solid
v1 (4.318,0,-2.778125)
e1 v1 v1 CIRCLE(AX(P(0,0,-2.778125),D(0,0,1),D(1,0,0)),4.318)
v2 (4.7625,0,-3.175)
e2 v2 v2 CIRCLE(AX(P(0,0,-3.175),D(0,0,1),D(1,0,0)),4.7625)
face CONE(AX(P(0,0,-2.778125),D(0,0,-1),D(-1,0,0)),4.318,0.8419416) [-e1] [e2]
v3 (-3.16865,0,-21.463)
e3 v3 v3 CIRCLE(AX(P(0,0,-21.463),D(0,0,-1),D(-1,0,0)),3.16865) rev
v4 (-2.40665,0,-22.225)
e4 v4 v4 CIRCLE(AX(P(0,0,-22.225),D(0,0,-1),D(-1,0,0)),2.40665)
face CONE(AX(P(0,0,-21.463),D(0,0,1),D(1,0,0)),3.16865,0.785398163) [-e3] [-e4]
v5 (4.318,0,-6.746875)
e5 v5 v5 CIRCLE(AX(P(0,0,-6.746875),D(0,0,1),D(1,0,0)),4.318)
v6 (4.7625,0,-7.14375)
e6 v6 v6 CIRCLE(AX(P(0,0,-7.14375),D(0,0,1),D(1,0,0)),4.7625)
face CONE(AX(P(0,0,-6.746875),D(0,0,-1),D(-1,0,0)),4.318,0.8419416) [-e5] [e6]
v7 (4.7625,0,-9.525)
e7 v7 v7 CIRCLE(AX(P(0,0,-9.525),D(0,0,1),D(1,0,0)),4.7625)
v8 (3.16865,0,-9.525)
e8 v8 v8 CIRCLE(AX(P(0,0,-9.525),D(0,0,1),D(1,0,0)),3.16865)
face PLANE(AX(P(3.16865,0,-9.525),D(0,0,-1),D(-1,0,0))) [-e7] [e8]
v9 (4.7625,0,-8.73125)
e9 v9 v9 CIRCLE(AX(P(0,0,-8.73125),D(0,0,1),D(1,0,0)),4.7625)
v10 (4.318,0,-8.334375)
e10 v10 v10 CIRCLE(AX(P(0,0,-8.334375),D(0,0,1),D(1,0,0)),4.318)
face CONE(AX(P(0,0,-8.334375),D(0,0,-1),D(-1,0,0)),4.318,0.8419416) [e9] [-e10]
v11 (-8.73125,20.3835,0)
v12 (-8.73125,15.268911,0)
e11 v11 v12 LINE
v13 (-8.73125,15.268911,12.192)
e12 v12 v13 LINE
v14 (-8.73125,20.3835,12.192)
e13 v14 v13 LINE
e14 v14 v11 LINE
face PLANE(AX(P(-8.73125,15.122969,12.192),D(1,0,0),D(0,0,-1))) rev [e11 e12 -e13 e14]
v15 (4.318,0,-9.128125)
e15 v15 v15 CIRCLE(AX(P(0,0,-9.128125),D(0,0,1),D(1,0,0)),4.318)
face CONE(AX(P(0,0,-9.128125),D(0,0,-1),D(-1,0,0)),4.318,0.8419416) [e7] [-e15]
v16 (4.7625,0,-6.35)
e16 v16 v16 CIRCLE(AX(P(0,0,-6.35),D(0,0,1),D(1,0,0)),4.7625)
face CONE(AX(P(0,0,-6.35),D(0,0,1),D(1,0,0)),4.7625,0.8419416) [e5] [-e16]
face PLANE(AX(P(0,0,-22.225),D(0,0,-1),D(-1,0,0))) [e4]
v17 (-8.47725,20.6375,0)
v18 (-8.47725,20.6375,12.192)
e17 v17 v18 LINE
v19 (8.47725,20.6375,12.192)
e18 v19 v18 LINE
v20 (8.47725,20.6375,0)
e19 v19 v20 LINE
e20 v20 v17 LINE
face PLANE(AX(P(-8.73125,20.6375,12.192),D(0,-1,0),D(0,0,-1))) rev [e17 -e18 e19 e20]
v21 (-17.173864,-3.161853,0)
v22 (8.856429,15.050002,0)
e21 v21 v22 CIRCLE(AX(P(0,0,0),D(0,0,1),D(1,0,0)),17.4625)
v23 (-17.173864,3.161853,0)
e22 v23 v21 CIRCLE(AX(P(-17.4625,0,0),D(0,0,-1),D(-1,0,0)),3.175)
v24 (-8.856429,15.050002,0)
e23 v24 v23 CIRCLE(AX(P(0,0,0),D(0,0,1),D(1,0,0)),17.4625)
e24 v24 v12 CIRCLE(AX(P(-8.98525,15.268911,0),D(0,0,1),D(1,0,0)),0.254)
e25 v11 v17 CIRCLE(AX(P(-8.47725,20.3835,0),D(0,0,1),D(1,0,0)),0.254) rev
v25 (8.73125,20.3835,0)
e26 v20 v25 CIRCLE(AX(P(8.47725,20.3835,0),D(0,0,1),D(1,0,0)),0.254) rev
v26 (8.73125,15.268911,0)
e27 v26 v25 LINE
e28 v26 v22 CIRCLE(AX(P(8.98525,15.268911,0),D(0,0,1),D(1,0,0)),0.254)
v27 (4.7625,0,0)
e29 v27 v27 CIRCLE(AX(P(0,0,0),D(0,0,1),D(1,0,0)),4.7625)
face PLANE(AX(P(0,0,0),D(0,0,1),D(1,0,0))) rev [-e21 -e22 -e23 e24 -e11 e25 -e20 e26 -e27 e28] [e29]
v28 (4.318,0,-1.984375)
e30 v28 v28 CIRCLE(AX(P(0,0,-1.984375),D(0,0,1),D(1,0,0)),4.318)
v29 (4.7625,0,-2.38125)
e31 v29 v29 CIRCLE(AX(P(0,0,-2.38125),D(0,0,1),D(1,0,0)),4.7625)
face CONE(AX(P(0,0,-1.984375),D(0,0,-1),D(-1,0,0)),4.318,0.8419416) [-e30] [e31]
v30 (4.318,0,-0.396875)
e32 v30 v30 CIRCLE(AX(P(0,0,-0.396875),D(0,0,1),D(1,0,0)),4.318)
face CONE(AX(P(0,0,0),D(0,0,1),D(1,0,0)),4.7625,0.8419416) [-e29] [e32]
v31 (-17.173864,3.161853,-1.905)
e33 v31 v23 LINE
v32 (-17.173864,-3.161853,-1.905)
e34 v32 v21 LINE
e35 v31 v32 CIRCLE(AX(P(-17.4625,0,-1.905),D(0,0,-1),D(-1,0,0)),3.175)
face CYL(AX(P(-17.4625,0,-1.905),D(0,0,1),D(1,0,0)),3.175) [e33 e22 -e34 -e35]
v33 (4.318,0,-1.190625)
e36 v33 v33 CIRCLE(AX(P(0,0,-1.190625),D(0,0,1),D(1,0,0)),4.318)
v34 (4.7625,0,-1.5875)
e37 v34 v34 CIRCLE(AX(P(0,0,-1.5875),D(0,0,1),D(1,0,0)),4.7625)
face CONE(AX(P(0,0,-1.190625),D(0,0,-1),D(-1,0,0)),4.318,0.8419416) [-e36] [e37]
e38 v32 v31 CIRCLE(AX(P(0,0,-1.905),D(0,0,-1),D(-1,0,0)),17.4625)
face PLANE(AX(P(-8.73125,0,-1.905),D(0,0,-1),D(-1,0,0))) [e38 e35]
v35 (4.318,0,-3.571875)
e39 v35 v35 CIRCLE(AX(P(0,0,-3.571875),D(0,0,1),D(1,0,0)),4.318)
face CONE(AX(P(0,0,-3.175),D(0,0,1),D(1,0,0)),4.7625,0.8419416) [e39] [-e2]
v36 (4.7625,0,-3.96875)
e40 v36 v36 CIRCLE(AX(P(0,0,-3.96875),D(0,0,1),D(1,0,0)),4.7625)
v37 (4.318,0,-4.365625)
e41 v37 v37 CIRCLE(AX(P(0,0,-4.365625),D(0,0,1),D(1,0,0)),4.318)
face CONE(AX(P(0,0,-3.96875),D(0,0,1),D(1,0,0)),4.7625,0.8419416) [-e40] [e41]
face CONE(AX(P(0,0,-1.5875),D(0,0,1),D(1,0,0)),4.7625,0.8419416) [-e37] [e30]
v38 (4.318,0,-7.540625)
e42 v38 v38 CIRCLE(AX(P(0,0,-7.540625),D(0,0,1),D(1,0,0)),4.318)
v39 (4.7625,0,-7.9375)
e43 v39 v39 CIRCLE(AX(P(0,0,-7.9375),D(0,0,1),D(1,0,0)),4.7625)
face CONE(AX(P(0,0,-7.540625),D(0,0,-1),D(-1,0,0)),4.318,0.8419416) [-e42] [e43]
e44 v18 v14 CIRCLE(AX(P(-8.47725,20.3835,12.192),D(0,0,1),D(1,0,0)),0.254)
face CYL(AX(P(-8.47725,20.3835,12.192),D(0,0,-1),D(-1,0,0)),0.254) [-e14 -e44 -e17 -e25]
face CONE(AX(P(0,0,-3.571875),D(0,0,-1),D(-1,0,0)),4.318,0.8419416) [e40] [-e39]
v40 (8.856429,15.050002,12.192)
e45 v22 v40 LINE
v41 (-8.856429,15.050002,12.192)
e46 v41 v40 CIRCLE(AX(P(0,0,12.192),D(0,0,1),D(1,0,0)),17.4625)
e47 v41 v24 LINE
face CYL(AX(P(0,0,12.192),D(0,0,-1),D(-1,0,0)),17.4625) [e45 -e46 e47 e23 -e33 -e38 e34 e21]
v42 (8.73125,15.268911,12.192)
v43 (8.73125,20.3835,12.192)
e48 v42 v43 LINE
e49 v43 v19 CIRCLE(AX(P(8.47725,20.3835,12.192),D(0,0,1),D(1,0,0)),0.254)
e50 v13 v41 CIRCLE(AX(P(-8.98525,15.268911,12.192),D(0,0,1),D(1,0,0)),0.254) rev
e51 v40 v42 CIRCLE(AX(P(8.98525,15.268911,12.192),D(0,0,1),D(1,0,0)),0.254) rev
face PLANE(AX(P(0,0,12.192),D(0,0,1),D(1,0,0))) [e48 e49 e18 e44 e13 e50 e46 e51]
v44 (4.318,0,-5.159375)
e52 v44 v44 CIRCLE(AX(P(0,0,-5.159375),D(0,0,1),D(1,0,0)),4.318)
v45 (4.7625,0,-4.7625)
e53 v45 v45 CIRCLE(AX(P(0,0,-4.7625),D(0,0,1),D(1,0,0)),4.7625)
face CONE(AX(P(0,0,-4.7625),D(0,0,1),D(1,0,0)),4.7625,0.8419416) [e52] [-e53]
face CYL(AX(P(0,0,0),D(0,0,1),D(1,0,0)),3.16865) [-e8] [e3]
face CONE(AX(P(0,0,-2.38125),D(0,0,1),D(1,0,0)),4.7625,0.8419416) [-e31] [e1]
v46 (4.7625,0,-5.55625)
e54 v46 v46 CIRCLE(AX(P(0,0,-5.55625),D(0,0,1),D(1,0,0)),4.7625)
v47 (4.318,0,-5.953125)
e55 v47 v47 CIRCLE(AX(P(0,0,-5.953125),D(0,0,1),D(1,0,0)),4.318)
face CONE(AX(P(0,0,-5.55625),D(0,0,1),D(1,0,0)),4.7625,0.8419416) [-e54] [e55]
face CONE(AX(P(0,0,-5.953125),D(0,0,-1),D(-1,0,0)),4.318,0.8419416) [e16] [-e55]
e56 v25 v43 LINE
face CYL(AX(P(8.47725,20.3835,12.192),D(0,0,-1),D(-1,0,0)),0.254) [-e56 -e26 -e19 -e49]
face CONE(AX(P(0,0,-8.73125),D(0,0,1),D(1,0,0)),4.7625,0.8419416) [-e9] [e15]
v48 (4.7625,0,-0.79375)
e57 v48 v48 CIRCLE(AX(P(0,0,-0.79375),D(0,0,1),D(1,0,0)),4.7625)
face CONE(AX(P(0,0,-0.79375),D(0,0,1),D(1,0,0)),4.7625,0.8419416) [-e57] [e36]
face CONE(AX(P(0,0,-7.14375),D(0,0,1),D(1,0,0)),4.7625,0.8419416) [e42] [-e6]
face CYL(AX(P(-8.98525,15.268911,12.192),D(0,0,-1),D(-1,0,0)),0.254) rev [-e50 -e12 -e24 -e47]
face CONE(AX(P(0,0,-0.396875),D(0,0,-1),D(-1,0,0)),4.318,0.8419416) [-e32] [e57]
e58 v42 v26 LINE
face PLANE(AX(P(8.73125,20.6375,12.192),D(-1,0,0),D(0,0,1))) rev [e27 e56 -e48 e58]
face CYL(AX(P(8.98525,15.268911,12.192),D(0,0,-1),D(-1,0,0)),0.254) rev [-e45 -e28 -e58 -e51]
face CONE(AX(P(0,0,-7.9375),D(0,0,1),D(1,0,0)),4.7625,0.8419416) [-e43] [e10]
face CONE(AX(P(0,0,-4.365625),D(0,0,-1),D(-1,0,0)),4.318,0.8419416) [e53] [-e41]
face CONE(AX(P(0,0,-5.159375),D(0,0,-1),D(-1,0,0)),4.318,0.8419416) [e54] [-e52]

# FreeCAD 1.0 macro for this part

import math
import FreeCAD as App
import Part
import Sketcher

V = App.Vector
Q = App.Units.Quantity


def edges_at(feature, points):
    """Names of the edges that pass closest to the given points."""
    edges = feature.Shape.Edges
    near = lambda p: min(range(len(edges)), key=lambda i: edges[i].distToShape(Part.Vertex(*p))[0])
    return sorted({f"Edge{near(p) + 1}" for p in points})

doc = App.newDocument("Part")
params = doc.addObject("Spreadsheet::Sheet", "Params")
for row, (alias, value) in enumerate([
    ("sketch1_radius", "0.6875 in"),
    ("sketch1_width", "0.6875 in"),
    ("pad1_length", "0.48 in"),
    ("pad2_length", "0.05 in"),
    ("sketch3_height", "0.5 in"),
    ("sketch3_width", "0.1875 in"),
    ("sketch3_height2", "0.875 in"),
    ("revolution_angle", "360 deg"),
    ("chamfer_size", "0.03 in"),
    ("fillet_radius", "0.01 in"),
    ("sketch4_radius", "0.125 in"),
    ("sketch4_radius2", "0.6875 in"),
    ("pad3_length", "0.075 in"),
], start=1):
    params.set(f"A{row}", alias)
    params.set(f"B{row}", "=" + value)
    params.setAlias(f"B{row}", alias)

body = doc.addObject("PartDesign::Body", "Body")

sketch1 = doc.addObject("Sketcher::SketchObject", "Sketch")
body.addObject(sketch1)
sketch1.AttachmentSupport = (doc.XY_Plane, [""])
sketch1.MapMode = "FlatFace"
sketch1.addGeometry([
    Part.LineSegment(V(-8.73125, 20.6375, 0), V(-8.73125, 15.122969, 0)),
    Part.ArcOfCircle(Part.Circle(V(0, 0, 0), V(0, 0, 1), 17.4625), math.radians(120), math.radians(420)),
    Part.LineSegment(V(8.73125, 15.122969, 0), V(8.73125, 20.6375, 0)),
    Part.LineSegment(V(8.73125, 20.6375, 0), V(-8.73125, 20.6375, 0)),
], False)
sketch1.addConstraint([
    Sketcher.Constraint("Coincident", 0, 2, 1, 1),
    Sketcher.Constraint("Coincident", 1, 2, 2, 1),
    Sketcher.Constraint("Coincident", 2, 2, 3, 1),
    Sketcher.Constraint("Coincident", 3, 2, 0, 1),
    Sketcher.Constraint("Vertical", 0),
    Sketcher.Constraint("Vertical", 2),
    Sketcher.Constraint("Horizontal", 3),
    Sketcher.Constraint("Coincident", 1, 3, -1, 1),
    Sketcher.Constraint("Horizontal", 0, 2, 1, 2),
    Sketcher.Constraint("Radius", 1, Q("0.6875 in")),
    Sketcher.Constraint("DistanceX", 3, 2, 3, 1, Q("0.6875 in")),
    Sketcher.Constraint("DistanceY", -1, 1, 2, 2, Q("0.8125 in")),
])
sketch1.setExpression("Constraints[9]", "Params.sketch1_radius")
sketch1.setExpression("Constraints[10]", "Params.sketch1_width")
pad1 = doc.addObject("PartDesign::Pad", "Pad")
body.addObject(pad1)
pad1.Profile = sketch1
pad1.setExpression("Length", "Params.pad1_length")
body2 = doc.addObject("PartDesign::Body", "Body001")

sketch2 = doc.addObject("Sketcher::SketchObject", "Sketch001")
body2.addObject(sketch2)
sketch2.AttachmentSupport = (doc.getObject("XY_Plane001"), [""])
sketch2.MapMode = "FlatFace"
sketch2.addGeometry([
    Part.LineSegment(V(-3.175, 1.833087, 0), V(0, 3.666174, 0)),
    Part.LineSegment(V(0, 3.666174, 0), V(3.175, 1.833087, 0)),
    Part.LineSegment(V(3.175, 1.833087, 0), V(3.175, -1.833087, 0)),
    Part.LineSegment(V(3.175, -1.833087, 0), V(0, -3.666174, 0)),
    Part.LineSegment(V(0, -3.666174, 0), V(-3.175, -1.833087, 0)),
    Part.LineSegment(V(-3.175, -1.833087, 0), V(-3.175, 1.833087, 0)),
], False)
sketch2.addConstraint([
    Sketcher.Constraint("Coincident", 0, 2, 1, 1),
    Sketcher.Constraint("Coincident", 1, 2, 2, 1),
    Sketcher.Constraint("Coincident", 2, 2, 3, 1),
    Sketcher.Constraint("Coincident", 3, 2, 4, 1),
    Sketcher.Constraint("Coincident", 4, 2, 5, 1),
    Sketcher.Constraint("Coincident", 5, 2, 0, 1),
    Sketcher.Constraint("Vertical", 2),
    Sketcher.Constraint("Vertical", 5),
    Sketcher.Constraint("Symmetric", 0, 2, 3, 2, -1, 1),
    Sketcher.Constraint("Symmetric", 1, 2, 4, 2, -1, 1),
    Sketcher.Constraint("PointOnObject", 0, 2, -2),
    Sketcher.Constraint("Parallel", 0, 3),
    Sketcher.Constraint("Horizontal", 2, 2, 4, 2),
    Sketcher.Constraint("Angle", 0, Q("30 deg")),
    Sketcher.Constraint("DistanceX", 4, 2, 2, 2, Q("0.25 in")),
    Sketcher.Constraint("DistanceY", 2, 2, 2, 1, 3.666174),
])
pad2 = doc.addObject("PartDesign::Pad", "Pad001")
body2.addObject(pad2)
pad2.Profile = sketch2
pad2.setExpression("Length", "Params.pad2_length")
pad2.Reversed = True
doc.recompute()

boolean = doc.addObject("PartDesign::Boolean", "Boolean")
body.addObject(boolean)
boolean.Type = "Fuse"
boolean.addObjects([body2])

sketch3 = doc.addObject("Sketcher::SketchObject", "Sketch002")
body.addObject(sketch3)
sketch3.AttachmentSupport = (doc.XZ_Plane, [""])
sketch3.MapMode = "FlatFace"
sketch3.addGeometry([
    Part.LineSegment(V(0, -22.225, 0), V(0, 0, 0)),
    Part.LineSegment(V(0, 0, 0), V(4.7625, 0, 0)),
    Part.LineSegment(V(4.7625, 0, 0), V(4.318, -0.396875, 0)),
    Part.LineSegment(V(4.318, -0.396875, 0), V(4.7625, -0.79375, 0)),
    Part.LineSegment(V(4.7625, -0.79375, 0), V(4.318, -1.190625, 0)),
    Part.LineSegment(V(4.318, -1.190625, 0), V(4.7625, -1.5875, 0)),
    Part.LineSegment(V(4.7625, -1.5875, 0), V(4.318, -1.984375, 0)),
    Part.LineSegment(V(4.318, -1.984375, 0), V(4.7625, -2.38125, 0)),
    Part.LineSegment(V(4.7625, -2.38125, 0), V(4.318, -2.778125, 0)),
    Part.LineSegment(V(4.318, -2.778125, 0), V(4.7625, -3.175, 0)),
    Part.LineSegment(V(4.7625, -3.175, 0), V(4.318, -3.571875, 0)),
    Part.LineSegment(V(4.318, -3.571875, 0), V(4.7625, -3.96875, 0)),
    Part.LineSegment(V(4.7625, -3.96875, 0), V(4.318, -4.365625, 0)),
    Part.LineSegment(V(4.318, -4.365625, 0), V(4.7625, -4.7625, 0)),
    Part.LineSegment(V(4.7625, -4.7625, 0), V(4.318, -5.159375, 0)),
    Part.LineSegment(V(4.318, -5.159375, 0), V(4.7625, -5.55625, 0)),
    Part.LineSegment(V(4.7625, -5.55625, 0), V(4.318, -5.953125, 0)),
    Part.LineSegment(V(4.318, -5.953125, 0), V(4.7625, -6.35, 0)),
    Part.LineSegment(V(4.7625, -6.35, 0), V(4.318, -6.746875, 0)),
    Part.LineSegment(V(4.318, -6.746875, 0), V(4.7625, -7.14375, 0)),
    Part.LineSegment(V(4.7625, -7.14375, 0), V(4.318, -7.540625, 0)),
    Part.LineSegment(V(4.318, -7.540625, 0), V(4.7625, -7.9375, 0)),
    Part.LineSegment(V(4.7625, -7.9375, 0), V(4.318, -8.334375, 0)),
    Part.LineSegment(V(4.318, -8.334375, 0), V(4.7625, -8.73125, 0)),
    Part.LineSegment(V(4.7625, -8.73125, 0), V(4.318, -9.128125, 0)),
    Part.LineSegment(V(4.318, -9.128125, 0), V(4.7625, -9.525, 0)),
    Part.LineSegment(V(4.7625, -9.525, 0), V(3.16865, -9.525, 0)),
    Part.LineSegment(V(3.16865, -9.525, 0), V(3.16865, -22.225, 0)),
    Part.LineSegment(V(3.16865, -22.225, 0), V(0, -22.225, 0)),
], False)
sketch3.addConstraint([
    Sketcher.Constraint("Coincident", 0, 2, 1, 1),
    Sketcher.Constraint("Coincident", 1, 2, 2, 1),
    Sketcher.Constraint("Coincident", 2, 2, 3, 1),
    Sketcher.Constraint("Coincident", 3, 2, 4, 1),
    Sketcher.Constraint("Coincident", 4, 2, 5, 1),
    Sketcher.Constraint("Coincident", 5, 2, 6, 1),
    Sketcher.Constraint("Coincident", 6, 2, 7, 1),
    Sketcher.Constraint("Coincident", 7, 2, 8, 1),
    Sketcher.Constraint("Coincident", 8, 2, 9, 1),
    Sketcher.Constraint("Coincident", 9, 2, 10, 1),
    Sketcher.Constraint("Coincident", 10, 2, 11, 1),
    Sketcher.Constraint("Coincident", 11, 2, 12, 1),
    Sketcher.Constraint("Coincident", 12, 2, 13, 1),
    Sketcher.Constraint("Coincident", 13, 2, 14, 1),
    Sketcher.Constraint("Coincident", 14, 2, 15, 1),
    Sketcher.Constraint("Coincident", 15, 2, 16, 1),
    Sketcher.Constraint("Coincident", 16, 2, 17, 1),
    Sketcher.Constraint("Coincident", 17, 2, 18, 1),
    Sketcher.Constraint("Coincident", 18, 2, 19, 1),
    Sketcher.Constraint("Coincident", 19, 2, 20, 1),
    Sketcher.Constraint("Coincident", 20, 2, 21, 1),
    Sketcher.Constraint("Coincident", 21, 2, 22, 1),
    Sketcher.Constraint("Coincident", 22, 2, 23, 1),
    Sketcher.Constraint("Coincident", 23, 2, 24, 1),
    Sketcher.Constraint("Coincident", 24, 2, 25, 1),
    Sketcher.Constraint("Coincident", 25, 2, 26, 1),
    Sketcher.Constraint("Coincident", 26, 2, 27, 1),
    Sketcher.Constraint("Coincident", 27, 2, 28, 1),
    Sketcher.Constraint("Coincident", 28, 2, 0, 1),
    Sketcher.Constraint("Vertical", 0),
    Sketcher.Constraint("Horizontal", 1),
    Sketcher.Constraint("Horizontal", 26),
    Sketcher.Constraint("Vertical", 27),
    Sketcher.Constraint("Horizontal", 28),
    Sketcher.Constraint("Coincident", 0, 2, -1, 1),
    Sketcher.Constraint("Parallel", 2, 4),
    Sketcher.Constraint("Parallel", 3, 5),
    Sketcher.Constraint("Parallel", 4, 6),
    Sketcher.Constraint("Parallel", 5, 7),
    Sketcher.Constraint("Parallel", 6, 8),
    Sketcher.Constraint("Parallel", 7, 9),
    Sketcher.Constraint("Parallel", 8, 10),
    Sketcher.Constraint("Parallel", 9, 11),
    Sketcher.Constraint("Parallel", 10, 12),
    Sketcher.Constraint("Parallel", 11, 13),
    Sketcher.Constraint("Parallel", 12, 14),
    Sketcher.Constraint("Parallel", 13, 15),
    Sketcher.Constraint("Parallel", 14, 16),
    Sketcher.Constraint("Parallel", 15, 17),
    Sketcher.Constraint("Parallel", 16, 18),
    Sketcher.Constraint("Parallel", 17, 19),
    Sketcher.Constraint("Parallel", 18, 20),
    Sketcher.Constraint("Parallel", 19, 21),
    Sketcher.Constraint("Parallel", 20, 22),
    Sketcher.Constraint("Parallel", 21, 23),
    Sketcher.Constraint("Parallel", 22, 24),
    Sketcher.Constraint("Parallel", 23, 25),
    Sketcher.Constraint("Vertical", 1, 2, 3, 2),
    Sketcher.Constraint("Vertical", 2, 2, 4, 2),
    Sketcher.Constraint("Vertical", 3, 2, 5, 2),
    Sketcher.Constraint("Vertical", 4, 2, 6, 2),
    Sketcher.Constraint("Vertical", 5, 2, 7, 2),
    Sketcher.Constraint("Vertical", 6, 2, 8, 2),
    Sketcher.Constraint("Vertical", 7, 2, 9, 2),
    Sketcher.Constraint("Vertical", 8, 2, 10, 2),
    Sketcher.Constraint("Vertical", 9, 2, 11, 2),
    Sketcher.Constraint("Vertical", 10, 2, 12, 2),
    Sketcher.Constraint("Vertical", 11, 2, 13, 2),
    Sketcher.Constraint("Vertical", 12, 2, 14, 2),
    Sketcher.Constraint("Vertical", 13, 2, 15, 2),
    Sketcher.Constraint("Vertical", 14, 2, 16, 2),
    Sketcher.Constraint("Vertical", 15, 2, 17, 2),
    Sketcher.Constraint("Vertical", 16, 2, 18, 2),
    Sketcher.Constraint("Vertical", 17, 2, 19, 2),
    Sketcher.Constraint("Vertical", 18, 2, 20, 2),
    Sketcher.Constraint("Vertical", 19, 2, 21, 2),
    Sketcher.Constraint("Vertical", 20, 2, 22, 2),
    Sketcher.Constraint("Vertical", 21, 2, 23, 2),
    Sketcher.Constraint("Vertical", 22, 2, 24, 2),
    Sketcher.Constraint("Vertical", 23, 2, 25, 2),
    Sketcher.Constraint("Equal", 2, 3),
    Sketcher.Constraint("DistanceY", 27, 2, 27, 1, Q("0.5 in")),
    Sketcher.Constraint("DistanceX", 1, 1, 1, 2, Q("0.1875 in")),
    Sketcher.Constraint("DistanceY", 0, 1, 0, 2, Q("0.875 in")),
    Sketcher.Constraint("DistanceX", -1, 1, 2, 2, Q("0.17 in")),
    Sketcher.Constraint("DistanceX", 26, 2, 26, 1, 1.59385),
])
sketch3.setExpression("Constraints[81]", "Params.sketch3_height")
sketch3.setExpression("Constraints[82]", "Params.sketch3_width")
sketch3.setExpression("Constraints[83]", "Params.sketch3_height2")
revolution = doc.addObject("PartDesign::Revolution", "Revolution")
body.addObject(revolution)
revolution.Profile = sketch3
revolution.ReferenceAxis = (sketch3, ["V_Axis"])
revolution.setExpression("Angle", "Params.revolution_angle")
doc.recompute()

chamfer = doc.addObject("PartDesign::Chamfer", "Chamfer")
body.addObject(chamfer)
chamfer.Base = (revolution, edges_at(revolution, [(-3.169, 0, -22.225)]))
chamfer.setExpression("Size", "Params.chamfer_size")
doc.recompute()

fillet = doc.addObject("PartDesign::Fillet", "Fillet")
body.addObject(fillet)
fillet.Base = (chamfer, edges_at(chamfer, [
    (-8.731, 15.123, 6.096),
    (-8.731, 20.637, 6.096),
    (8.731, 20.637, 6.096),
    (8.731, 15.123, 6.096),
]))
fillet.setExpression("Radius", "Params.fillet_radius")

sketch4 = doc.addObject("Sketcher::SketchObject", "Sketch003")
body.addObject(sketch4)
sketch4.AttachmentSupport = (doc.XY_Plane, [""])
sketch4.MapMode = "FlatFace"
sketch4.AttachmentOffset = App.Placement(V(0, 0, -0.075 * 25.4), App.Rotation())
sketch4.addGeometry([
    Part.ArcOfCircle(Part.Circle(V(-17.4625, 0, 0), V(0, 0, 1), 3.175), math.radians(-84.784091), math.radians(84.784091)),
    Part.ArcOfCircle(Part.Circle(V(0, 0, 0), V(0, 0, 1), 17.4625), math.radians(169.568183), math.radians(190.431817)),
], False)
sketch4.addConstraint([
    Sketcher.Constraint("Coincident", 0, 1, 1, 2),
    Sketcher.Constraint("Coincident", 1, 1, 0, 2),
    Sketcher.Constraint("Coincident", 1, 3, -1, 1),
    Sketcher.Constraint("PointOnObject", 0, 3, -1),
    Sketcher.Constraint("Radius", 0, Q("0.125 in")),
    Sketcher.Constraint("Radius", 1, Q("0.6875 in")),
    Sketcher.Constraint("DistanceX", 0, 3, -1, 1, Q("0.6875 in")),
])
sketch4.setExpression("Constraints[4]", "Params.sketch4_radius")
sketch4.setExpression("Constraints[5]", "Params.sketch4_radius2")
pad3 = doc.addObject("PartDesign::Pad", "Pad002")
body.addObject(pad3)
pad3.Profile = sketch4
pad3.setExpression("Length", "Params.pad3_length")

doc.recompute()
